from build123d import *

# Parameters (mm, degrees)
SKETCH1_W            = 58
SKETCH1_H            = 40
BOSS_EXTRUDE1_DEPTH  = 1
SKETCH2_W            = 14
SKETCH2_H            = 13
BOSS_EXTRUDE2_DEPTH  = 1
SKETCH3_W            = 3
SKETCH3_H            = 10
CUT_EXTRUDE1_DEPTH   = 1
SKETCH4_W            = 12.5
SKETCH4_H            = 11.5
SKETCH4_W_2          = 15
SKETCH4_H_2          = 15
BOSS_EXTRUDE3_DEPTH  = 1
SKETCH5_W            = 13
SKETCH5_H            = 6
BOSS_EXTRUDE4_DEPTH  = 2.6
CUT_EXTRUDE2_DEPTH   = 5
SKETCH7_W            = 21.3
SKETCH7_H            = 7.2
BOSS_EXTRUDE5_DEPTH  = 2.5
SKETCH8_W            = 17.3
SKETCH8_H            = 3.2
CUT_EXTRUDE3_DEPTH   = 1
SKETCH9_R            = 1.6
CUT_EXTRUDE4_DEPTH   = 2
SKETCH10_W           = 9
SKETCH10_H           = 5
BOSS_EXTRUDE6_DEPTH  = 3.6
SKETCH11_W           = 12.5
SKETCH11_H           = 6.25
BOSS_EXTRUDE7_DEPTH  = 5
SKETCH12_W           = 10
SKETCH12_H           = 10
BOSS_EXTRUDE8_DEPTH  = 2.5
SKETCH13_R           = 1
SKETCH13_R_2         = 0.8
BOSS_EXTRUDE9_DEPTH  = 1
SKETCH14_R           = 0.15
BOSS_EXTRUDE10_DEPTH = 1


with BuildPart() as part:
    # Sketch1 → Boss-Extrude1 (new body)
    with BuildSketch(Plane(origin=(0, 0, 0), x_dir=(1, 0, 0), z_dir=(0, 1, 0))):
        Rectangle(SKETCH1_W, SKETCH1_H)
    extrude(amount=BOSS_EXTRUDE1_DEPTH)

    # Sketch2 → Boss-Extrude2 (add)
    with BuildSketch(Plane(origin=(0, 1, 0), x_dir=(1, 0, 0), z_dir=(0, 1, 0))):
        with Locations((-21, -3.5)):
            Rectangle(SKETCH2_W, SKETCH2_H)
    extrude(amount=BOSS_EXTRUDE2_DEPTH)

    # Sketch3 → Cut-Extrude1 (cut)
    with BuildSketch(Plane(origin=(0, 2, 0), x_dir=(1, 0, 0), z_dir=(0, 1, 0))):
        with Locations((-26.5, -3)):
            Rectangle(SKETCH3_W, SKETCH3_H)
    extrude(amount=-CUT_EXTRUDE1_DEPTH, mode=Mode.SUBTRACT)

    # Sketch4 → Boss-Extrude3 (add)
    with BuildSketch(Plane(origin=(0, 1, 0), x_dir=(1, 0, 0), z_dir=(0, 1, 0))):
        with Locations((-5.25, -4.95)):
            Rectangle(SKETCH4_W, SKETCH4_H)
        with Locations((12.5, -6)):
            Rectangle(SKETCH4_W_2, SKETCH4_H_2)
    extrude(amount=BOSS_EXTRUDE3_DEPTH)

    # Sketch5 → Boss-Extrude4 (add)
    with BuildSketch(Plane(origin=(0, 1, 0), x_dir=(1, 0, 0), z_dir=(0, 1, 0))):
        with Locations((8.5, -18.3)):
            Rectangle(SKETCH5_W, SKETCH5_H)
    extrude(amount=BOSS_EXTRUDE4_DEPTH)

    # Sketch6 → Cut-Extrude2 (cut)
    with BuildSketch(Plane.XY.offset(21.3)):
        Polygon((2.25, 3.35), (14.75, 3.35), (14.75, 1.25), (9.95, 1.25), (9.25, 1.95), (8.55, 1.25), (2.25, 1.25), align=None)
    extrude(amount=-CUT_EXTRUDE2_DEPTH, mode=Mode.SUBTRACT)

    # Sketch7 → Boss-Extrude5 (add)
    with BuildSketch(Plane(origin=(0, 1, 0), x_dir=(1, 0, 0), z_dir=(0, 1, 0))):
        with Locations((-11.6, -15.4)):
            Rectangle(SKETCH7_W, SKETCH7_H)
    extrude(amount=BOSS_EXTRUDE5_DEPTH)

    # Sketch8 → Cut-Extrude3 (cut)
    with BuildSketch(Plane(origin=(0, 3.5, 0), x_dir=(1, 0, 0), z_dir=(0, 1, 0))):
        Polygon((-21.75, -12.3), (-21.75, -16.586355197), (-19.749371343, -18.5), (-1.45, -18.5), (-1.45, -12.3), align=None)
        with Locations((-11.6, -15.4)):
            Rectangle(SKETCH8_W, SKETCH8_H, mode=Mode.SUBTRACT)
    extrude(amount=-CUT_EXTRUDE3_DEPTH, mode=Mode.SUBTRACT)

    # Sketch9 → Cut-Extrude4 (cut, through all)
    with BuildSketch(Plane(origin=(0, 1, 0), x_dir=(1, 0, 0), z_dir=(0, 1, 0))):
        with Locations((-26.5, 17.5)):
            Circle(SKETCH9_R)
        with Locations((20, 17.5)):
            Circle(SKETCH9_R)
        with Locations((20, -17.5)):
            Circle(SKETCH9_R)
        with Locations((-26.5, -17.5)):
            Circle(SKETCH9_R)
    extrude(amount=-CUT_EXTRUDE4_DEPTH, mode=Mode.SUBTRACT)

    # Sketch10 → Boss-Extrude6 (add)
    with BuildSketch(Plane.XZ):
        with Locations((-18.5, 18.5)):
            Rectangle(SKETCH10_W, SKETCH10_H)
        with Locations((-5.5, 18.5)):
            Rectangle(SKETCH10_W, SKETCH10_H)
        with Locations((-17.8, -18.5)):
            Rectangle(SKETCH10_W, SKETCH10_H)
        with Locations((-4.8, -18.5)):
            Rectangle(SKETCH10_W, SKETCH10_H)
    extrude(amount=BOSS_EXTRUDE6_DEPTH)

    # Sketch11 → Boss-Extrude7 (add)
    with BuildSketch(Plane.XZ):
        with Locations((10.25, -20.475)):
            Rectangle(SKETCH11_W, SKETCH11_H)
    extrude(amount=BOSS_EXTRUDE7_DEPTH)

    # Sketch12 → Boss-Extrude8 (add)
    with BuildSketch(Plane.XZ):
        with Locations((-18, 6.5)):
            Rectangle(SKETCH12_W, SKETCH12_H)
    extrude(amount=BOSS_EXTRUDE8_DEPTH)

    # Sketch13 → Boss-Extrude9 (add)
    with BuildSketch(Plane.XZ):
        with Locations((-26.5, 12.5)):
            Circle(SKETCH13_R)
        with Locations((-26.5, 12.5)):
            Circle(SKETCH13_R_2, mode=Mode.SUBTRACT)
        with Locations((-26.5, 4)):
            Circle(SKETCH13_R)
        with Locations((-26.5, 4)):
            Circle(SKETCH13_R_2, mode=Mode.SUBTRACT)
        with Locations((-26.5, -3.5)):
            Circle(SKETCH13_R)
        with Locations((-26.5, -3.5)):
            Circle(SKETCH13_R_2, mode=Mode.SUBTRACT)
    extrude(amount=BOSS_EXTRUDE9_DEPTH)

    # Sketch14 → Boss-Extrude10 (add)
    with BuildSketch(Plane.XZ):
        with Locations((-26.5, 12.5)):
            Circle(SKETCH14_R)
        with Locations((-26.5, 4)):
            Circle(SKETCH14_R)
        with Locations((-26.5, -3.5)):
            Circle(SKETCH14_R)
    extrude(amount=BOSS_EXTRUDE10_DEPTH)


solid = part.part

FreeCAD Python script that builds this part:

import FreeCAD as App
import Part
import Sketcher

V = App.Vector

doc = App.newDocument("Part")
params = doc.addObject("Spreadsheet::Sheet", "Params")
for row, (alias, value) in enumerate([
    ("sketch1_width", "58 mm"),
    ("sketch1_height", "40 mm"),
    ("pad1_length", "1 mm"),
    ("sketch2_width", "14 mm"),
    ("sketch2_height", "13 mm"),
    ("pad2_length", "1 mm"),
    ("sketch3_width", "3 mm"),
    ("sketch3_height", "10 mm"),
    ("pocket1_length", "1 mm"),
    ("sketch4_width", "15 mm"),
    ("sketch4_width2", "12.5 mm"),
    ("sketch4_height", "11.5 mm"),
    ("pad3_length", "1 mm"),
    ("sketch5_width", "13 mm"),
    ("sketch5_height", "6 mm"),
    ("pad4_length", "2.6 mm"),
    ("sketch6_width", "12.5 mm"),
    ("sketch6_width2", "6.3 mm"),
    ("sketch6_width3", "4.8 mm"),
    ("sketch6_height", "2.1 mm"),
    ("pocket2_length", "5 mm"),
    ("sketch7_width", "21.3 mm"),
    ("sketch7_height", "7.2 mm"),
    ("pad5_length", "2.5 mm"),
    ("sketch8_width", "20.3 mm"),
    ("sketch8_width2", "17.3 mm"),
    ("sketch8_height", "6.2 mm"),
    ("sketch8_height2", "3.2 mm"),
    ("pocket3_length", "1 mm"),
    ("sketch9_diameter", "3.2 mm"),
    ("sketch10_width", "9 mm"),
    ("sketch10_height", "5 mm"),
    ("pad6_length", "3.6 mm"),
    ("sketch11_width", "12.5 mm"),
    ("sketch11_height", "6.25 mm"),
    ("pad7_length", "5 mm"),
    ("sketch12_width", "10 mm"),
    ("pad8_length", "2.5 mm"),
    ("sketch13_diameter", "2 mm"),
    ("sketch13_diameter2", "1.6 mm"),
    ("pad9_length", "1 mm"),
    ("sketch14_diameter", "0.3 mm"),
    ("pad10_length", "1 mm"),
], start=1):
    params.set(f"A{row}", alias)
    params.set(f"B{row}", "=" + value)
    params.setAlias(f"B{row}", alias)

body = doc.addObject("PartDesign::Body", "Body")

# Sketch on XZ plane
sketch1 = doc.addObject("Sketcher::SketchObject", "Sketch")
body.addObject(sketch1)
sketch1.AttachmentSupport = (doc.XZ_Plane, [""])
sketch1.MapMode = "FlatFace"
sketch1.addGeometry([
    Part.LineSegment(V(-29, -20, 0), V(-29, 20, 0)),
    Part.LineSegment(V(-29, 20, 0), V(29, 20, 0)),
    Part.LineSegment(V(29, 20, 0), V(29, -20, 0)),
    Part.LineSegment(V(29, -20, 0), V(-29, -20, 0)),
], False)
sketch1.addConstraint([
    Sketcher.Constraint("Coincident", 0, 2, 1, 1),
    Sketcher.Constraint("Coincident", 1, 2, 2, 1),
    Sketcher.Constraint("Coincident", 2, 2, 3, 1),
    Sketcher.Constraint("Coincident", 3, 2, 0, 1),
    Sketcher.Constraint("Vertical", 0),
    Sketcher.Constraint("Horizontal", 1),
    Sketcher.Constraint("Vertical", 2),
    Sketcher.Constraint("Horizontal", 3),
    Sketcher.Constraint("Symmetric", 0, 2, 2, 2, -1, 1),
    Sketcher.Constraint("DistanceX", 1, 1, 1, 2, 58.0),
    Sketcher.Constraint("DistanceY", 0, 1, 0, 2, 40.0),
])
sketch1.setExpression("Constraints[9]", "Params.sketch1_width")
sketch1.setExpression("Constraints[10]", "Params.sketch1_height")
pad1 = doc.addObject("PartDesign::Pad", "Pad")
body.addObject(pad1)
pad1.Profile = sketch1
pad1.setExpression("Length", "Params.pad1_length")
pad1.Reversed = True

# Sketch on XZ plane
sketch2 = doc.addObject("Sketcher::SketchObject", "Sketch001")
body.addObject(sketch2)
sketch2.AttachmentSupport = (doc.XZ_Plane, [""])
sketch2.MapMode = "FlatFace"
sketch2.AttachmentOffset = App.Placement(V(0, 0, -1), App.Rotation())
sketch2.addGeometry([
    Part.LineSegment(V(-28, -3, 0), V(-28, 10, 0)),
    Part.LineSegment(V(-28, 10, 0), V(-14, 10, 0)),
    Part.LineSegment(V(-14, 10, 0), V(-14, -3, 0)),
    Part.LineSegment(V(-14, -3, 0), V(-28, -3, 0)),
], False)
sketch2.addConstraint([
    Sketcher.Constraint("Coincident", 0, 2, 1, 1),
    Sketcher.Constraint("Coincident", 1, 2, 2, 1),
    Sketcher.Constraint("Coincident", 2, 2, 3, 1),
    Sketcher.Constraint("Coincident", 3, 2, 0, 1),
    Sketcher.Constraint("Vertical", 0),
    Sketcher.Constraint("Horizontal", 1),
    Sketcher.Constraint("Vertical", 2),
    Sketcher.Constraint("Horizontal", 3),
    Sketcher.Constraint("DistanceX", 1, 1, 1, 2, 14.0),
    Sketcher.Constraint("DistanceY", 0, 1, 0, 2, 13.0),
    Sketcher.Constraint("DistanceX", 0, 2, -1, 1, 28.0),
    Sketcher.Constraint("DistanceY", -1, 1, 0, 2, 10.0),
])
sketch2.setExpression("Constraints[8]", "Params.sketch2_width")
sketch2.setExpression("Constraints[9]", "Params.sketch2_height")
pad2 = doc.addObject("PartDesign::Pad", "Pad001")
body.addObject(pad2)
pad2.Profile = sketch2
pad2.setExpression("Length", "Params.pad2_length")
pad2.Reversed = True

# Sketch on XZ plane
sketch3 = doc.addObject("Sketcher::SketchObject", "Sketch002")
body.addObject(sketch3)
sketch3.AttachmentSupport = (doc.XZ_Plane, [""])
sketch3.MapMode = "FlatFace"
sketch3.AttachmentOffset = App.Placement(V(0, 0, -2), App.Rotation())
sketch3.addGeometry([
    Part.LineSegment(V(-28, -2, 0), V(-28, 8, 0)),
    Part.LineSegment(V(-28, 8, 0), V(-25, 8, 0)),
    Part.LineSegment(V(-25, 8, 0), V(-25, -2, 0)),
    Part.LineSegment(V(-25, -2, 0), V(-28, -2, 0)),
], False)
sketch3.addConstraint([
    Sketcher.Constraint("Coincident", 0, 2, 1, 1),
    Sketcher.Constraint("Coincident", 1, 2, 2, 1),
    Sketcher.Constraint("Coincident", 2, 2, 3, 1),
    Sketcher.Constraint("Coincident", 3, 2, 0, 1),
    Sketcher.Constraint("Vertical", 0),
    Sketcher.Constraint("Horizontal", 1),
    Sketcher.Constraint("Vertical", 2),
    Sketcher.Constraint("Horizontal", 3),
    Sketcher.Constraint("DistanceX", 1, 1, 1, 2, 3.0),
    Sketcher.Constraint("DistanceY", 0, 1, 0, 2, 10.0),
    Sketcher.Constraint("DistanceX", 0, 2, -1, 1, 28.0),
    Sketcher.Constraint("DistanceY", -1, 1, 0, 2, 8.0),
])
sketch3.setExpression("Constraints[8]", "Params.sketch3_width")
sketch3.setExpression("Constraints[9]", "Params.sketch3_height")
pocket1 = doc.addObject("PartDesign::Pocket", "Pocket")
body.addObject(pocket1)
pocket1.Profile = sketch3
pocket1.setExpression("Length", "Params.pocket1_length")
pocket1.Reversed = True

# Sketch on XZ plane
sketch4 = doc.addObject("Sketcher::SketchObject", "Sketch003")
body.addObject(sketch4)
sketch4.AttachmentSupport = (doc.XZ_Plane, [""])
sketch4.MapMode = "FlatFace"
sketch4.AttachmentOffset = App.Placement(V(0, 0, -1), App.Rotation())
sketch4.addGeometry([
    Part.LineSegment(V(-11.5, -0.8, 0), V(-11.5, 10.7, 0)),  # 0
    Part.LineSegment(V(-11.5, 10.7, 0), V(1, 10.7, 0)),  # 1
    Part.LineSegment(V(1, 10.7, 0), V(1, -0.8, 0)),  # 2
    Part.LineSegment(V(1, -0.8, 0), V(-11.5, -0.8, 0)),  # 3
    Part.LineSegment(V(5, -1.5, 0), V(5, 13.5, 0)),  # 4
    Part.LineSegment(V(5, 13.5, 0), V(20, 13.5, 0)),  # 5
    Part.LineSegment(V(20, 13.5, 0), V(20, -1.5, 0)),  # 6
    Part.LineSegment(V(20, -1.5, 0), V(5, -1.5, 0)),  # 7
], False)
sketch4.addConstraint([
    Sketcher.Constraint("Coincident", 0, 2, 1, 1),
    Sketcher.Constraint("Coincident", 1, 2, 2, 1),
    Sketcher.Constraint("Coincident", 2, 2, 3, 1),
    Sketcher.Constraint("Coincident", 3, 2, 0, 1),
    Sketcher.Constraint("Coincident", 4, 2, 5, 1),
    Sketcher.Constraint("Coincident", 5, 2, 6, 1),
    Sketcher.Constraint("Coincident", 6, 2, 7, 1),
    Sketcher.Constraint("Coincident", 7, 2, 4, 1),
    Sketcher.Constraint("Vertical", 0),
    Sketcher.Constraint("Horizontal", 1),
    Sketcher.Constraint("Vertical", 2),
    Sketcher.Constraint("Horizontal", 3),
    Sketcher.Constraint("Vertical", 4),
    Sketcher.Constraint("Horizontal", 5),
    Sketcher.Constraint("Vertical", 6),
    Sketcher.Constraint("Horizontal", 7),
    Sketcher.Constraint("Equal", 7, 4),
    Sketcher.Constraint("DistanceX", 5, 1, 5, 2, 15.0),
    Sketcher.Constraint("DistanceX", 1, 1, 1, 2, 12.5),
    Sketcher.Constraint("DistanceY", 0, 1, 0, 2, 11.5),
    Sketcher.Constraint("DistanceX", -1, 1, 1, 2, 1.0),
    Sketcher.Constraint("DistanceX", -1, 1, 4, 2, 5.0),
    Sketcher.Constraint("DistanceY", -1, 1, 0, 2, 10.7),
    Sketcher.Constraint("DistanceY", -1, 1, 4, 2, 13.5),
])
sketch4.setExpression("Constraints[17]", "Params.sketch4_width")
sketch4.setExpression("Constraints[18]", "Params.sketch4_width2")
sketch4.setExpression("Constraints[19]", "Params.sketch4_height")
pad3 = doc.addObject("PartDesign::Pad", "Pad002")
body.addObject(pad3)
pad3.Profile = sketch4
pad3.setExpression("Length", "Params.pad3_length")
pad3.Reversed = True

# Sketch on XZ plane
sketch5 = doc.addObject("Sketcher::SketchObject", "Sketch004")
body.addObject(sketch5)
sketch5.AttachmentSupport = (doc.XZ_Plane, [""])
sketch5.MapMode = "FlatFace"
sketch5.AttachmentOffset = App.Placement(V(0, 0, -1), App.Rotation())
sketch5.addGeometry([
    Part.LineSegment(V(2, 15.3, 0), V(2, 21.3, 0)),
    Part.LineSegment(V(2, 21.3, 0), V(15, 21.3, 0)),
    Part.LineSegment(V(15, 21.3, 0), V(15, 15.3, 0)),
    Part.LineSegment(V(15, 15.3, 0), V(2, 15.3, 0)),
], False)
sketch5.addConstraint([
    Sketcher.Constraint("Coincident", 0, 2, 1, 1),
    Sketcher.Constraint("Coincident", 1, 2, 2, 1),
    Sketcher.Constraint("Coincident", 2, 2, 3, 1),
    Sketcher.Constraint("Coincident", 3, 2, 0, 1),
    Sketcher.Constraint("Vertical", 0),
    Sketcher.Constraint("Horizontal", 1),
    Sketcher.Constraint("Vertical", 2),
    Sketcher.Constraint("Horizontal", 3),
    Sketcher.Constraint("DistanceX", 1, 1, 1, 2, 13.0),
    Sketcher.Constraint("DistanceY", 0, 1, 0, 2, 6.0),
    Sketcher.Constraint("DistanceX", -1, 1, 0, 2, 2.0),
    Sketcher.Constraint("DistanceY", -1, 1, 0, 2, 21.3),
])
sketch5.setExpression("Constraints[8]", "Params.sketch5_width")
sketch5.setExpression("Constraints[9]", "Params.sketch5_height")
pad4 = doc.addObject("PartDesign::Pad", "Pad003")
body.addObject(pad4)
pad4.Profile = sketch5
pad4.setExpression("Length", "Params.pad4_length")
pad4.Reversed = True

# Sketch on XY plane
sketch6 = doc.addObject("Sketcher::SketchObject", "Sketch005")
body.addObject(sketch6)
sketch6.AttachmentSupport = (doc.XY_Plane, [""])
sketch6.MapMode = "FlatFace"
sketch6.AttachmentOffset = App.Placement(V(0, 0, 21.3), App.Rotation())
sketch6.addGeometry([
    Part.LineSegment(V(14.75, 3.35, 0), V(2.25, 3.35, 0)),  # 0
    Part.LineSegment(V(2.25, 3.35, 0), V(2.25, 1.25, 0)),  # 1
    Part.LineSegment(V(2.25, 1.25, 0), V(8.55, 1.25, 0)),  # 2
    Part.LineSegment(V(8.55, 1.25, 0), V(9.25, 1.95, 0)),  # 3
    Part.LineSegment(V(9.25, 1.95, 0), V(9.95, 1.25, 0)),  # 4
    Part.LineSegment(V(9.95, 1.25, 0), V(14.75, 1.25, 0)),  # 5
    Part.LineSegment(V(14.75, 1.25, 0), V(14.75, 3.35, 0)),  # 6
], False)
sketch6.addConstraint([
    Sketcher.Constraint("Coincident", 0, 2, 1, 1),
    Sketcher.Constraint("Coincident", 1, 2, 2, 1),
    Sketcher.Constraint("Coincident", 2, 2, 3, 1),
    Sketcher.Constraint("Coincident", 3, 2, 4, 1),
    Sketcher.Constraint("Coincident", 4, 2, 5, 1),
    Sketcher.Constraint("Coincident", 5, 2, 6, 1),
    Sketcher.Constraint("Coincident", 6, 2, 0, 1),
    Sketcher.Constraint("Horizontal", 0),
    Sketcher.Constraint("Vertical", 1),
    Sketcher.Constraint("Horizontal", 2),
    Sketcher.Constraint("Horizontal", 5),
    Sketcher.Constraint("Vertical", 6),
    Sketcher.Constraint("Perpendicular", 3, 4),
    Sketcher.Constraint("Horizontal", 2, 2, 4, 2),
    Sketcher.Constraint("Equal", 3, 4),
    Sketcher.Constraint("DistanceX", 0, 2, 0, 1, 12.5),
    Sketcher.Constraint("DistanceX", 2, 1, 2, 2, 6.3),
    Sketcher.Constraint("DistanceX", 5, 1, 5, 2, 4.8),
    Sketcher.Constraint("DistanceY", 1, 2, 1, 1, 2.1),
    Sketcher.Constraint("DistanceX", -1, 1, 0, 2, 2.25),
    Sketcher.Constraint("DistanceY", -1, 1, 0, 2, 3.35),
])
sketch6.setExpression("Constraints[15]", "Params.sketch6_width")
sketch6.setExpression("Constraints[16]", "Params.sketch6_width2")
sketch6.setExpression("Constraints[17]", "Params.sketch6_width3")
sketch6.setExpression("Constraints[18]", "Params.sketch6_height")
pocket2 = doc.addObject("PartDesign::Pocket", "Pocket001")
body.addObject(pocket2)
pocket2.Profile = sketch6
pocket2.setExpression("Length", "Params.pocket2_length")

# Sketch on XZ plane
sketch7 = doc.addObject("Sketcher::SketchObject", "Sketch006")
body.addObject(sketch7)
sketch7.AttachmentSupport = (doc.XZ_Plane, [""])
sketch7.MapMode = "FlatFace"
sketch7.AttachmentOffset = App.Placement(V(0, 0, -1), App.Rotation())
sketch7.addGeometry([
    Part.LineSegment(V(-22.25, 11.8, 0), V(-22.25, 19, 0)),
    Part.LineSegment(V(-22.25, 19, 0), V(-0.95, 19, 0)),
    Part.LineSegment(V(-0.95, 19, 0), V(-0.95, 11.8, 0)),
    Part.LineSegment(V(-0.95, 11.8, 0), V(-22.25, 11.8, 0)),
], False)
sketch7.addConstraint([
    Sketcher.Constraint("Coincident", 0, 2, 1, 1),
    Sketcher.Constraint("Coincident", 1, 2, 2, 1),
    Sketcher.Constraint("Coincident", 2, 2, 3, 1),
    Sketcher.Constraint("Coincident", 3, 2, 0, 1),
    Sketcher.Constraint("Vertical", 0),
    Sketcher.Constraint("Horizontal", 1),
    Sketcher.Constraint("Vertical", 2),
    Sketcher.Constraint("Horizontal", 3),
    Sketcher.Constraint("DistanceX", 1, 1, 1, 2, 21.3),
    Sketcher.Constraint("DistanceY", 0, 1, 0, 2, 7.2),
    Sketcher.Constraint("DistanceY", -1, 1, 0, 2, 19.0),
    Sketcher.Constraint("DistanceX", 0, 2, -1, 1, 22.25),
])
sketch7.setExpression("Constraints[8]", "Params.sketch7_width")
sketch7.setExpression("Constraints[9]", "Params.sketch7_height")
pad5 = doc.addObject("PartDesign::Pad", "Pad004")
body.addObject(pad5)
pad5.Profile = sketch7
pad5.setExpression("Length", "Params.pad5_length")
pad5.Reversed = True

# Sketch on XZ plane
sketch8 = doc.addObject("Sketcher::SketchObject", "Sketch007")
body.addObject(sketch8)
sketch8.AttachmentSupport = (doc.XZ_Plane, [""])
sketch8.MapMode = "FlatFace"
sketch8.AttachmentOffset = App.Placement(V(0, 0, -3.5), App.Rotation())
sketch8.addGeometry([
    Part.LineSegment(V(-21.75, 12.3, 0), V(-21.75, 16.586355, 0)),  # 0
    Part.LineSegment(V(-21.75, 16.586355, 0), V(-19.749371, 18.5, 0)),  # 1
    Part.LineSegment(V(-19.749371, 18.5, 0), V(-1.45, 18.5, 0)),  # 2
    Part.LineSegment(V(-1.45, 18.5, 0), V(-1.45, 12.3, 0)),  # 3
    Part.LineSegment(V(-1.45, 12.3, 0), V(-21.75, 12.3, 0)),  # 4
    Part.LineSegment(V(-2.95, 17, 0), V(-20.25, 17, 0)),  # 5
    Part.LineSegment(V(-20.25, 17, 0), V(-20.25, 13.8, 0)),  # 6
    Part.LineSegment(V(-20.25, 13.8, 0), V(-2.95, 13.8, 0)),  # 7
    Part.LineSegment(V(-2.95, 13.8, 0), V(-2.95, 17, 0)),  # 8
], False)
sketch8.addConstraint([
    Sketcher.Constraint("Coincident", 0, 2, 1, 1),
    Sketcher.Constraint("Coincident", 1, 2, 2, 1),
    Sketcher.Constraint("Coincident", 2, 2, 3, 1),
    Sketcher.Constraint("Coincident", 3, 2, 4, 1),
    Sketcher.Constraint("Coincident", 4, 2, 0, 1),
    Sketcher.Constraint("Coincident", 5, 2, 6, 1),
    Sketcher.Constraint("Coincident", 6, 2, 7, 1),
    Sketcher.Constraint("Coincident", 7, 2, 8, 1),
    Sketcher.Constraint("Coincident", 8, 2, 5, 1),
    Sketcher.Constraint("Vertical", 0),
    Sketcher.Constraint("Horizontal", 2),
    Sketcher.Constraint("Vertical", 3),
    Sketcher.Constraint("Horizontal", 4),
    Sketcher.Constraint("Horizontal", 5),
    Sketcher.Constraint("Vertical", 6),
    Sketcher.Constraint("Horizontal", 7),
    Sketcher.Constraint("Vertical", 8),
    Sketcher.Constraint("DistanceX", 4, 2, 4, 1, 20.3),
    Sketcher.Constraint("DistanceX", 5, 2, 5, 1, 17.3),
    Sketcher.Constraint("DistanceY", 3, 2, 3, 1, 6.2),
    Sketcher.Constraint("DistanceY", 6, 2, 6, 1, 3.2),
    Sketcher.Constraint("DistanceY", -1, 1, 5, 2, 17.0),
    Sketcher.Constraint("DistanceY", -1, 1, 1, 2, 18.5),
    Sketcher.Constraint("DistanceX", 0, 2, 5, 2, 1.5),
    Sketcher.Constraint("DistanceX", 0, 2, -1, 1, 21.75),
    Sketcher.Constraint("DistanceX", 2, 1, 2, 2, 18.299371),
    Sketcher.Constraint("DistanceY", 0, 1, 0, 2, 4.286355),
])
sketch8.setExpression("Constraints[17]", "Params.sketch8_width")
sketch8.setExpression("Constraints[18]", "Params.sketch8_width2")
sketch8.setExpression("Constraints[19]", "Params.sketch8_height")
sketch8.setExpression("Constraints[20]", "Params.sketch8_height2")
pocket3 = doc.addObject("PartDesign::Pocket", "Pocket002")
body.addObject(pocket3)
pocket3.Profile = sketch8
pocket3.setExpression("Length", "Params.pocket3_length")
pocket3.Reversed = True

# Sketch on XZ plane
sketch9 = doc.addObject("Sketcher::SketchObject", "Sketch008")
body.addObject(sketch9)
sketch9.AttachmentSupport = (doc.XZ_Plane, [""])
sketch9.MapMode = "FlatFace"
sketch9.AttachmentOffset = App.Placement(V(0, 0, -1), App.Rotation())
sketch9.addGeometry([
    Part.Circle(V(-26.5, -17.5, 0), V(0, 0, 1), 1.6),
    Part.Circle(V(20, -17.5, 0), V(0, 0, 1), 1.6),
    Part.Circle(V(20, 17.5, 0), V(0, 0, 1), 1.6),
    Part.Circle(V(-26.5, 17.5, 0), V(0, 0, 1), 1.6),
], False)
sketch9.addConstraint([
    Sketcher.Constraint("Equal", 0, 1),
    Sketcher.Constraint("Equal", 1, 2),
    Sketcher.Constraint("Equal", 2, 3),
    Sketcher.Constraint("Symmetric", 1, 3, 2, 3, -1),
    Sketcher.Constraint("Symmetric", 0, 3, 3, 3, -1),
    Sketcher.Constraint("Horizontal", 0, 3, 1, 3),
    Sketcher.Constraint("Diameter", 0, 3.2),
    Sketcher.Constraint("DistanceX", -1, 1, 1, 3, 20.0),
    Sketcher.Constraint("DistanceY", 1, 3, 2, 3, 35.0),
    Sketcher.Constraint("DistanceX", 0, 3, -1, 1, 26.5),
])
sketch9.setExpression("Constraints[6]", "Params.sketch9_diameter")
pocket4 = doc.addObject("PartDesign::Pocket", "Pocket003")
body.addObject(pocket4)
pocket4.Profile = sketch9
pocket4.Type = "ThroughAll"
pocket4.Reversed = True

# Sketch on XZ plane
sketch10 = doc.addObject("Sketcher::SketchObject", "Sketch009")
body.addObject(sketch10)
sketch10.AttachmentSupport = (doc.XZ_Plane, [""])
sketch10.MapMode = "FlatFace"
sketch10.addGeometry([
    Part.LineSegment(V(-23, 21, 0), V(-23, 16, 0)),  # 0
    Part.LineSegment(V(-23, 16, 0), V(-14, 16, 0)),  # 1
    Part.LineSegment(V(-14, 16, 0), V(-14, 21, 0)),  # 2
    Part.LineSegment(V(-14, 21, 0), V(-23, 21, 0)),  # 3
    Part.LineSegment(V(-10, 21, 0), V(-10, 16, 0)),  # 4
    Part.LineSegment(V(-10, 16, 0), V(-1, 16, 0)),  # 5
    Part.LineSegment(V(-1, 16, 0), V(-1, 21, 0)),  # 6
    Part.LineSegment(V(-1, 21, 0), V(-10, 21, 0)),  # 7
    Part.LineSegment(V(-22.3, -16, 0), V(-22.3, -21, 0)),  # 8
    Part.LineSegment(V(-22.3, -21, 0), V(-13.3, -21, 0)),  # 9
    Part.LineSegment(V(-13.3, -21, 0), V(-13.3, -16, 0)),  # 10
    Part.LineSegment(V(-13.3, -16, 0), V(-22.3, -16, 0)),  # 11
    Part.LineSegment(V(-9.3, -16, 0), V(-9.3, -21, 0)),  # 12
    Part.LineSegment(V(-9.3, -21, 0), V(-0.3, -21, 0)),  # 13
    Part.LineSegment(V(-0.3, -21, 0), V(-0.3, -16, 0)),  # 14
    Part.LineSegment(V(-0.3, -16, 0), V(-9.3, -16, 0)),  # 15
], False)
sketch10.addConstraint([
    Sketcher.Constraint("Coincident", 0, 2, 1, 1),
    Sketcher.Constraint("Coincident", 1, 2, 2, 1),
    Sketcher.Constraint("Coincident", 2, 2, 3, 1),
    Sketcher.Constraint("Coincident", 3, 2, 0, 1),
    Sketcher.Constraint("Coincident", 4, 2, 5, 1),
    Sketcher.Constraint("Coincident", 5, 2, 6, 1),
    Sketcher.Constraint("Coincident", 6, 2, 7, 1),
    Sketcher.Constraint("Coincident", 7, 2, 4, 1),
    Sketcher.Constraint("Coincident", 8, 2, 9, 1),
    Sketcher.Constraint("Coincident", 9, 2, 10, 1),
    Sketcher.Constraint("Coincident", 10, 2, 11, 1),
    Sketcher.Constraint("Coincident", 11, 2, 8, 1),
    Sketcher.Constraint("Coincident", 12, 2, 13, 1),
    Sketcher.Constraint("Coincident", 13, 2, 14, 1),
    Sketcher.Constraint("Coincident", 14, 2, 15, 1),
    Sketcher.Constraint("Coincident", 15, 2, 12, 1),
    Sketcher.Constraint("Vertical", 0),
    Sketcher.Constraint("Horizontal", 1),
    Sketcher.Constraint("Vertical", 2),
    Sketcher.Constraint("Horizontal", 3),
    Sketcher.Constraint("Vertical", 4),
    Sketcher.Constraint("Horizontal", 5),
    Sketcher.Constraint("Vertical", 6),
    Sketcher.Constraint("Horizontal", 7),
    Sketcher.Constraint("Vertical", 8),
    Sketcher.Constraint("Horizontal", 9),
    Sketcher.Constraint("Vertical", 10),
    Sketcher.Constraint("Horizontal", 11),
    Sketcher.Constraint("Vertical", 12),
    Sketcher.Constraint("Horizontal", 13),
    Sketcher.Constraint("Vertical", 14),
    Sketcher.Constraint("Horizontal", 15),
    Sketcher.Constraint("Horizontal", 1, 2, 4, 2),
    Sketcher.Constraint("Horizontal", 3, 2, 6, 2),
    Sketcher.Constraint("Horizontal", 9, 2, 12, 2),
    Sketcher.Constraint("Horizontal", 11, 2, 14, 2),
    Sketcher.Constraint("Equal", 3, 5),
    Sketcher.Constraint("Equal", 7, 9),
    Sketcher.Constraint("Equal", 11, 13),
    Sketcher.Constraint("Equal", 6, 8),
    Sketcher.Constraint("DistanceX", 1, 1, 1, 2, 9.0),
    Sketcher.Constraint("DistanceY", 0, 2, 0, 1, 5.0),
    Sketcher.Constraint("DistanceX", 0, 2, -1, 1, 23.0),
    Sketcher.Constraint("DistanceY", -1, 1, 0, 2, 16.0),
    Sketcher.Constraint("DistanceX", 4, 2, -1, 1, 10.0),
    Sketcher.Constraint("DistanceY", 8, 2, -1, 1, 21.0),
    Sketcher.Constraint("DistanceX", 9, 2, 12, 2, 4.0),
    Sketcher.Constraint("DistanceX", 8, 2, -1, 1, 22.3),
])
sketch10.setExpression("Constraints[40]", "Params.sketch10_width")
sketch10.setExpression("Constraints[41]", "Params.sketch10_height")
pad6 = doc.addObject("PartDesign::Pad", "Pad005")
body.addObject(pad6)
pad6.Profile = sketch10
pad6.setExpression("Length", "Params.pad6_length")

# Sketch on XZ plane
sketch11 = doc.addObject("Sketcher::SketchObject", "Sketch010")
body.addObject(sketch11)
sketch11.AttachmentSupport = (doc.XZ_Plane, [""])
sketch11.MapMode = "FlatFace"
sketch11.addGeometry([
    Part.LineSegment(V(4, -17.35, 0), V(4, -23.6, 0)),
    Part.LineSegment(V(4, -23.6, 0), V(16.5, -23.6, 0)),
    Part.LineSegment(V(16.5, -23.6, 0), V(16.5, -17.35, 0)),
    Part.LineSegment(V(16.5, -17.35, 0), V(4, -17.35, 0)),
], False)
sketch11.addConstraint([
    Sketcher.Constraint("Coincident", 0, 2, 1, 1),
    Sketcher.Constraint("Coincident", 1, 2, 2, 1),
    Sketcher.Constraint("Coincident", 2, 2, 3, 1),
    Sketcher.Constraint("Coincident", 3, 2, 0, 1),
    Sketcher.Constraint("Vertical", 0),
    Sketcher.Constraint("Horizontal", 1),
    Sketcher.Constraint("Vertical", 2),
    Sketcher.Constraint("Horizontal", 3),
    Sketcher.Constraint("DistanceX", 1, 1, 1, 2, 12.5),
    Sketcher.Constraint("DistanceX", -1, 1, 0, 2, 4.0),
    Sketcher.Constraint("DistanceY", 0, 2, 0, 1, 6.25),
    Sketcher.Constraint("DistanceY", 0, 2, -1, 1, 23.6),
])
sketch11.setExpression("Constraints[8]", "Params.sketch11_width")
sketch11.setExpression("Constraints[10]", "Params.sketch11_height")
pad7 = doc.addObject("PartDesign::Pad", "Pad006")
body.addObject(pad7)
pad7.Profile = sketch11
pad7.setExpression("Length", "Params.pad7_length")

# Sketch on XZ plane
sketch12 = doc.addObject("Sketcher::SketchObject", "Sketch011")
body.addObject(sketch12)
sketch12.AttachmentSupport = (doc.XZ_Plane, [""])
sketch12.MapMode = "FlatFace"
sketch12.addGeometry([
    Part.LineSegment(V(-23, 11.5, 0), V(-23, 1.5, 0)),
    Part.LineSegment(V(-23, 1.5, 0), V(-13, 1.5, 0)),
    Part.LineSegment(V(-13, 1.5, 0), V(-13, 11.5, 0)),
    Part.LineSegment(V(-13, 11.5, 0), V(-23, 11.5, 0)),
], False)
sketch12.addConstraint([
    Sketcher.Constraint("Coincident", 0, 2, 1, 1),
    Sketcher.Constraint("Coincident", 1, 2, 2, 1),
    Sketcher.Constraint("Coincident", 2, 2, 3, 1),
    Sketcher.Constraint("Coincident", 3, 2, 0, 1),
    Sketcher.Constraint("Vertical", 0),
    Sketcher.Constraint("Horizontal", 1),
    Sketcher.Constraint("Vertical", 2),
    Sketcher.Constraint("Horizontal", 3),
    Sketcher.Constraint("Equal", 3, 0),
    Sketcher.Constraint("DistanceX", 1, 1, 1, 2, 10.0),
    Sketcher.Constraint("DistanceX", 0, 2, -1, 1, 23.0),
    Sketcher.Constraint("DistanceY", -1, 1, 0, 2, 1.5),
])
sketch12.setExpression("Constraints[9]", "Params.sketch12_width")
pad8 = doc.addObject("PartDesign::Pad", "Pad007")
body.addObject(pad8)
pad8.Profile = sketch12
pad8.setExpression("Length", "Params.pad8_length")

# Sketch on XZ plane
sketch13 = doc.addObject("Sketcher::SketchObject", "Sketch012")
body.addObject(sketch13)
sketch13.AttachmentSupport = (doc.XZ_Plane, [""])
sketch13.MapMode = "FlatFace"
sketch13.addGeometry([
    Part.Circle(V(-26.5, 12.5, 0), V(0, 0, 1), 1),  # 0
    Part.Circle(V(-26.5, 12.5, 0), V(0, 0, 1), 0.8),  # 1
    Part.Circle(V(-26.5, 4, 0), V(0, 0, 1), 1),  # 2
    Part.Circle(V(-26.5, 4, 0), V(0, 0, 1), 0.8),  # 3
    Part.Circle(V(-26.5, -3.5, 0), V(0, 0, 1), 1),  # 4
    Part.Circle(V(-26.5, -3.5, 0), V(0, 0, 1), 0.8),  # 5
], False)
sketch13.addConstraint([
    Sketcher.Constraint("Coincident", 1, 3, 0, 3),
    Sketcher.Constraint("Coincident", 3, 3, 2, 3),
    Sketcher.Constraint("Coincident", 5, 3, 4, 3),
    Sketcher.Constraint("Equal", 0, 2),
    Sketcher.Constraint("Equal", 1, 3),
    Sketcher.Constraint("Equal", 2, 4),
    Sketcher.Constraint("Equal", 3, 5),
    Sketcher.Constraint("Vertical", 1, 3, 2, 3),
    Sketcher.Constraint("Vertical", 3, 3, 4, 3),
    Sketcher.Constraint("Diameter", 0, 2.0),
    Sketcher.Constraint("Diameter", 1, 1.6),
    Sketcher.Constraint("DistanceY", -1, 1, 2, 3, 4.0),
    Sketcher.Constraint("DistanceY", 4, 3, 0, 3, 16.0),
    Sketcher.Constraint("DistanceX", 0, 3, -1, 1, 26.5),
    Sketcher.Constraint("DistanceY", -1, 1, 0, 3, 12.5),
])
sketch13.setExpression("Constraints[9]", "Params.sketch13_diameter")
sketch13.setExpression("Constraints[10]", "Params.sketch13_diameter2")
pad9 = doc.addObject("PartDesign::Pad", "Pad008")
body.addObject(pad9)
pad9.Profile = sketch13
pad9.setExpression("Length", "Params.pad9_length")

# Sketch on XZ plane
sketch14 = doc.addObject("Sketcher::SketchObject", "Sketch013")
body.addObject(sketch14)
sketch14.AttachmentSupport = (doc.XZ_Plane, [""])
sketch14.MapMode = "FlatFace"
sketch14.addGeometry([
    Part.Circle(V(-26.5, 12.5, 0), V(0, 0, 1), 0.15),
    Part.Circle(V(-26.5, 4, 0), V(0, 0, 1), 0.15),
    Part.Circle(V(-26.5, -3.5, 0), V(0, 0, 1), 0.15),
], False)
sketch14.addConstraint([
    Sketcher.Constraint("Equal", 0, 1),
    Sketcher.Constraint("Equal", 1, 2),
    Sketcher.Constraint("Vertical", 0, 3, 1, 3),
    Sketcher.Constraint("Vertical", 1, 3, 2, 3),
    Sketcher.Constraint("Diameter", 0, 0.3),
    Sketcher.Constraint("DistanceY", -1, 1, 1, 3, 4.0),
    Sketcher.Constraint("DistanceY", 2, 3, 0, 3, 16.0),
    Sketcher.Constraint("DistanceX", 0, 3, -1, 1, 26.5),
    Sketcher.Constraint("DistanceY", -1, 1, 0, 3, 12.5),
])
sketch14.setExpression("Constraints[4]", "Params.sketch14_diameter")
pad10 = doc.addObject("PartDesign::Pad", "Pad009")
body.addObject(pad10)
pad10.Profile = sketch14
pad10.setExpression("Length", "Params.pad10_length")

doc.recompute()
